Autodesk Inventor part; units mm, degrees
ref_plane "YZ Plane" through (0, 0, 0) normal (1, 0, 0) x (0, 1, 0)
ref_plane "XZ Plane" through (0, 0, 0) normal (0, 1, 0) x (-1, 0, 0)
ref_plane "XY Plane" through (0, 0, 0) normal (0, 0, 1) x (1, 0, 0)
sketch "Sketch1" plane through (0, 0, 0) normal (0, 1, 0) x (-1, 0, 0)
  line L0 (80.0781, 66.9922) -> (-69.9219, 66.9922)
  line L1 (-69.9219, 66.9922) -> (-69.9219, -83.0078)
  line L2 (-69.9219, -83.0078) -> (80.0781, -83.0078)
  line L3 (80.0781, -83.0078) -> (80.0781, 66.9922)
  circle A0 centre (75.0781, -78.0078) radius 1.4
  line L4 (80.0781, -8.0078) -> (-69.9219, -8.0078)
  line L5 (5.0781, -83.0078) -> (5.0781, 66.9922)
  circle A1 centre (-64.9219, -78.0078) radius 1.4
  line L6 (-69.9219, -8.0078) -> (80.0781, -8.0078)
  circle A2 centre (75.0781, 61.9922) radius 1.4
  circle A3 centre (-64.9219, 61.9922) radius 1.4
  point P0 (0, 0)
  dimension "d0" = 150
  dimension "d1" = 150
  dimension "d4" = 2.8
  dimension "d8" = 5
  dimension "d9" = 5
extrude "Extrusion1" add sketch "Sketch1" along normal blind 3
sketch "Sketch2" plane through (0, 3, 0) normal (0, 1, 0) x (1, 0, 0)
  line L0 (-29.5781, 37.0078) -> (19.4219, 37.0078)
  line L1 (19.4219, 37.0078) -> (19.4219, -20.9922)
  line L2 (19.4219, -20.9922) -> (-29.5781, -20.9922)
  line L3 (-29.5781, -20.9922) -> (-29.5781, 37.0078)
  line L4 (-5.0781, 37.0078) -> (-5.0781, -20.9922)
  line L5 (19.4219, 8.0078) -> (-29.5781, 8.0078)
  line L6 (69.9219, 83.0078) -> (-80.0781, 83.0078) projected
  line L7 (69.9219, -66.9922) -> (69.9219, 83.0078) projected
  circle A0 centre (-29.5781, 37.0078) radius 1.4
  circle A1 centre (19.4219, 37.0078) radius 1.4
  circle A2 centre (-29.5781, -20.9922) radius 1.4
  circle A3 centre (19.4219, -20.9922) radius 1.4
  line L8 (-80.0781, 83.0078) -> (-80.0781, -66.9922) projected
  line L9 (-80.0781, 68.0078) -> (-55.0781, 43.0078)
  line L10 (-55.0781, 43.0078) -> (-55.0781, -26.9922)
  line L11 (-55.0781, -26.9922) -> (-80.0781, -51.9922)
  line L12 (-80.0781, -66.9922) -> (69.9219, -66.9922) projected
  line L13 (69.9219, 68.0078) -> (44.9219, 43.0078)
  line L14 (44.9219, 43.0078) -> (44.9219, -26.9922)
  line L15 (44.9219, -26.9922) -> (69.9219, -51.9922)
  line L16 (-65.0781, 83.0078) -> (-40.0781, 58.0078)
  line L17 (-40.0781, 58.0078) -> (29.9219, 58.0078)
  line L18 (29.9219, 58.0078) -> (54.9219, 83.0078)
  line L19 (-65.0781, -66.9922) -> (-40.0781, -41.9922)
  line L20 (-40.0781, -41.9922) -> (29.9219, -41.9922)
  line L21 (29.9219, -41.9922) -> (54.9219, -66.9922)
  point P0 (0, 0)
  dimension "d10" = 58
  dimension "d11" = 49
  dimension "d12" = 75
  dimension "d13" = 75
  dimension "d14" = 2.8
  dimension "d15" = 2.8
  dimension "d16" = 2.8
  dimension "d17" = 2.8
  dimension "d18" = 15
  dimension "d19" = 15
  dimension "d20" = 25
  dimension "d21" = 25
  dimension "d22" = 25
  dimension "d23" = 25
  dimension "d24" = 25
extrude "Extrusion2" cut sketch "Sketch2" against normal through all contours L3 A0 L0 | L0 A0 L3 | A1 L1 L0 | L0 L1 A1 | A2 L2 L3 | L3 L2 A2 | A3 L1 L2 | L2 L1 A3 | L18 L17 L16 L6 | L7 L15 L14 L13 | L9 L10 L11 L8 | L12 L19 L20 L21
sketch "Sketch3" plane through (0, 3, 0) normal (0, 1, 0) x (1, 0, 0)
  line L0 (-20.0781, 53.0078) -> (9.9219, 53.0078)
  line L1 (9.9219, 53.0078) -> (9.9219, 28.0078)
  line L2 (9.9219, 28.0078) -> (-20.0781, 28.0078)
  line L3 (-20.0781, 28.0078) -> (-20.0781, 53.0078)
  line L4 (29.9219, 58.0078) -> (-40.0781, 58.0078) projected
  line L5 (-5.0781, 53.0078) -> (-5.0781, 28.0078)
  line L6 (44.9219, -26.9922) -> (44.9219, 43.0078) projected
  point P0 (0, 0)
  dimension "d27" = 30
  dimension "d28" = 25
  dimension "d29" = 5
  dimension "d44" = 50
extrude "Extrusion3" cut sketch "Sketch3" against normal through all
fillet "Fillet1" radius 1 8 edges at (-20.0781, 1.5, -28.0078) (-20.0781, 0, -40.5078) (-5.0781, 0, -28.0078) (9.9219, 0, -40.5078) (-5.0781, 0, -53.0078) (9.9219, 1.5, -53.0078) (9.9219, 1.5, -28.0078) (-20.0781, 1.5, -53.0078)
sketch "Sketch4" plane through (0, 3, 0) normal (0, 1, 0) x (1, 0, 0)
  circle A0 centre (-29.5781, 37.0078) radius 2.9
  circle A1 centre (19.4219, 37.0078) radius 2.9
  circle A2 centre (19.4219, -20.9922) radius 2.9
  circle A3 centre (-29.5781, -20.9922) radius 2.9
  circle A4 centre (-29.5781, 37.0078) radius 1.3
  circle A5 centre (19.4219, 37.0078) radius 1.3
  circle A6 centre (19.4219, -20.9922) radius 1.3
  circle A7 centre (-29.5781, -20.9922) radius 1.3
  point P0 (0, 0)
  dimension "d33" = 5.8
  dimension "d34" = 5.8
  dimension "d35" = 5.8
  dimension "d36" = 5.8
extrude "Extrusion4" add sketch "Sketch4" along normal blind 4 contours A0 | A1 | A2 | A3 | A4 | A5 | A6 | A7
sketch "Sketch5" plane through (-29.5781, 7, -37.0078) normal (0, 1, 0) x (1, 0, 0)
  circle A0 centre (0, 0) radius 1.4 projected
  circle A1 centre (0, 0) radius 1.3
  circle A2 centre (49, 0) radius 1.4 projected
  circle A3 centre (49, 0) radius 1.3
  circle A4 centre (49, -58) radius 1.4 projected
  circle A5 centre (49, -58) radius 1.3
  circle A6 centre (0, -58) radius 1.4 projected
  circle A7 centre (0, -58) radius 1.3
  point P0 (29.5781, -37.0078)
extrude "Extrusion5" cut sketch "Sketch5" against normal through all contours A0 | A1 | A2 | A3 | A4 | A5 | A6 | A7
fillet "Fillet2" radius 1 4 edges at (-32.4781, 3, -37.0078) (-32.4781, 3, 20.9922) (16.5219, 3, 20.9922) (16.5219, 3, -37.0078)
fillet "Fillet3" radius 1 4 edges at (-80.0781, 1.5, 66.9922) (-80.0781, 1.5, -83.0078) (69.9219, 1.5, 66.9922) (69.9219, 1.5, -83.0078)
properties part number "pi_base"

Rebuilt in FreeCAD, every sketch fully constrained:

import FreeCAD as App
import Part
import Sketcher

V = App.Vector
Q = App.Units.Quantity


def edges_at(feature, points):
    """Names of the edges that pass closest to the given points."""
    edges = feature.Shape.Edges
    near = lambda p: min(range(len(edges)), key=lambda i: edges[i].distToShape(Part.Vertex(*p))[0])
    return sorted({f"Edge{near(p) + 1}" for p in points})

doc = App.newDocument("Part")
body = doc.addObject("PartDesign::Body", "Body")

sketch1 = body.newObject("Sketcher::SketchObject", "Sketch")
sketch1.AttachmentSupport = (doc.getObject("XZ_Plane"), [""])
sketch1.MapMode = "FlatFace"
sketch1.addGeometry(Part.LineSegment(V(-80.0781, 66.9922, 0), V(69.9219, 66.9922, 0)), False)
sketch1.addGeometry(Part.LineSegment(V(69.9219, 66.9922, 0), V(69.9219, -83.0078, 0)), False)
sketch1.addGeometry(Part.LineSegment(V(69.9219, -83.0078, 0), V(-80.0781, -83.0078, 0)), False)
sketch1.addGeometry(Part.LineSegment(V(-80.0781, -83.0078, 0), V(-80.0781, 66.9922, 0)), False)
sketch1.addGeometry(Part.Circle(V(-75.0781, 61.9922, 0), V(0, 0, 1), 1.4), False)
sketch1.addGeometry(Part.Circle(V(-75.0781, -78.0078, 0), V(0, 0, 1), 1.4), False)
sketch1.addGeometry(Part.Circle(V(64.9219, 61.9922, 0), V(0, 0, 1), 1.4), False)
sketch1.addGeometry(Part.Circle(V(64.9219, -78.0078, 0), V(0, 0, 1), 1.4), False)
sketch1.addConstraint(Sketcher.Constraint("Coincident", 0, 2, 1, 1))
sketch1.addConstraint(Sketcher.Constraint("Coincident", 1, 2, 2, 1))
sketch1.addConstraint(Sketcher.Constraint("Coincident", 2, 2, 3, 1))
sketch1.addConstraint(Sketcher.Constraint("Coincident", 3, 2, 0, 1))
sketch1.addConstraint(Sketcher.Constraint("Horizontal", 0))
sketch1.addConstraint(Sketcher.Constraint("Vertical", 1))
sketch1.addConstraint(Sketcher.Constraint("Horizontal", 2))
sketch1.addConstraint(Sketcher.Constraint("Vertical", 3))
sketch1.addConstraint(Sketcher.Constraint("Equal", 4, 5))
sketch1.addConstraint(Sketcher.Constraint("Equal", 5, 6))
sketch1.addConstraint(Sketcher.Constraint("Equal", 6, 7))
sketch1.addConstraint(Sketcher.Constraint("Horizontal", 4, 3, 6, 3))
sketch1.addConstraint(Sketcher.Constraint("Horizontal", 5, 3, 7, 3))
sketch1.addConstraint(Sketcher.Constraint("Vertical", 4, 3, 5, 3))
sketch1.addConstraint(Sketcher.Constraint("Vertical", 6, 3, 7, 3))
sketch1.addConstraint(Sketcher.Constraint("Equal", 2, 1))
sketch1.addConstraint(Sketcher.Constraint("Diameter", 4, Q("2.8 mm")))
sketch1.addConstraint(Sketcher.Constraint("DistanceX", 0, 1, 0, 2, Q("150 mm")))
sketch1.addConstraint(Sketcher.Constraint("DistanceX", 6, 3, 0, 2, Q("5 mm")))
sketch1.addConstraint(Sketcher.Constraint("DistanceY", 6, 3, 0, 2, Q("5 mm")))
sketch1.addConstraint(Sketcher.Constraint("DistanceY", 1, 2, 7, 3, Q("5 mm")))
sketch1.addConstraint(Sketcher.Constraint("DistanceX", 2, 2, 5, 3, Q("5 mm")))
sketch1.addConstraint(Sketcher.Constraint("DistanceX", 4, 3, -1, 1, Q("75.078 mm")))
sketch1.addConstraint(Sketcher.Constraint("DistanceY", -1, 1, 4, 3, Q("61.9922 mm")))
pad1 = body.newObject("PartDesign::Pad", "Pad")
pad1.Profile = sketch1
pad1.Length = 3
pad1.Reversed = True

sketch2 = body.newObject("Sketcher::SketchObject", "Sketch001")
sketch2.AttachmentSupport = (doc.getObject("XZ_Plane"), [""])
sketch2.MapMode = "FlatFace"
sketch2.AttachmentOffset = App.Placement(V(0, 0, -3), App.Rotation())
sketch2.addGeometry(Part.Circle(V(-29.5781, -37.0078, 0), V(0, 0, 1), 1.4), False)
sketch2.addGeometry(Part.Circle(V(19.4219, -37.0078, 0), V(0, 0, 1), 1.4), False)
sketch2.addGeometry(Part.Circle(V(-29.5781, 20.9922, 0), V(0, 0, 1), 1.4), False)
sketch2.addGeometry(Part.Circle(V(19.4219, 20.9922, 0), V(0, 0, 1), 1.4), False)
sketch2.addGeometry(Part.LineSegment(V(29.9219, -58.0078, 0), V(54.9219, -83.0078, 0)), False)
sketch2.addGeometry(Part.LineSegment(V(54.9219, -83.0078, 0), V(-65.0781, -83.0078, 0)), False)
sketch2.addGeometry(Part.LineSegment(V(-65.0781, -83.0078, 0), V(-40.0781, -58.0078, 0)), False)
sketch2.addGeometry(Part.LineSegment(V(-40.0781, -58.0078, 0), V(29.9219, -58.0078, 0)), False)
sketch2.addGeometry(Part.LineSegment(V(69.9219, 51.9922, 0), V(69.9219, -68.0078, 0)), False)
sketch2.addGeometry(Part.LineSegment(V(69.9219, -68.0078, 0), V(44.9219, -43.0078, 0)), False)
sketch2.addGeometry(Part.LineSegment(V(44.9219, -43.0078, 0), V(44.9219, 26.9922, 0)), False)
sketch2.addGeometry(Part.LineSegment(V(44.9219, 26.9922, 0), V(69.9219, 51.9922, 0)), False)
sketch2.addGeometry(Part.LineSegment(V(-55.0781, -43.0078, 0), V(-80.0781, -68.0078, 0)), False)
sketch2.addGeometry(Part.LineSegment(V(-80.0781, -68.0078, 0), V(-80.0781, 51.9922, 0)), False)
sketch2.addGeometry(Part.LineSegment(V(-80.0781, 51.9922, 0), V(-55.0781, 26.9922, 0)), False)
sketch2.addGeometry(Part.LineSegment(V(-55.0781, 26.9922, 0), V(-55.0781, -43.0078, 0)), False)
sketch2.addGeometry(Part.LineSegment(V(-65.0781, 66.9922, 0), V(54.9219, 66.9922, 0)), False)
sketch2.addGeometry(Part.LineSegment(V(54.9219, 66.9922, 0), V(29.9219, 41.9922, 0)), False)
sketch2.addGeometry(Part.LineSegment(V(29.9219, 41.9922, 0), V(-40.0781, 41.9922, 0)), False)
sketch2.addGeometry(Part.LineSegment(V(-40.0781, 41.9922, 0), V(-65.0781, 66.9922, 0)), False)
sketch2.addConstraint(Sketcher.Constraint("Coincident", 4, 2, 5, 1))
sketch2.addConstraint(Sketcher.Constraint("Coincident", 5, 2, 6, 1))
sketch2.addConstraint(Sketcher.Constraint("Coincident", 6, 2, 7, 1))
sketch2.addConstraint(Sketcher.Constraint("Coincident", 7, 2, 4, 1))
sketch2.addConstraint(Sketcher.Constraint("Coincident", 8, 2, 9, 1))
sketch2.addConstraint(Sketcher.Constraint("Coincident", 9, 2, 10, 1))
sketch2.addConstraint(Sketcher.Constraint("Coincident", 10, 2, 11, 1))
sketch2.addConstraint(Sketcher.Constraint("Coincident", 11, 2, 8, 1))
sketch2.addConstraint(Sketcher.Constraint("Coincident", 12, 2, 13, 1))
sketch2.addConstraint(Sketcher.Constraint("Coincident", 13, 2, 14, 1))
sketch2.addConstraint(Sketcher.Constraint("Coincident", 14, 2, 15, 1))
sketch2.addConstraint(Sketcher.Constraint("Coincident", 15, 2, 12, 1))
sketch2.addConstraint(Sketcher.Constraint("Coincident", 16, 2, 17, 1))
sketch2.addConstraint(Sketcher.Constraint("Coincident", 17, 2, 18, 1))
sketch2.addConstraint(Sketcher.Constraint("Coincident", 18, 2, 19, 1))
sketch2.addConstraint(Sketcher.Constraint("Coincident", 19, 2, 16, 1))
sketch2.addConstraint(Sketcher.Constraint("Horizontal", 5))
sketch2.addConstraint(Sketcher.Constraint("Horizontal", 7))
sketch2.addConstraint(Sketcher.Constraint("Vertical", 8))
sketch2.addConstraint(Sketcher.Constraint("Vertical", 10))
sketch2.addConstraint(Sketcher.Constraint("Vertical", 13))
sketch2.addConstraint(Sketcher.Constraint("Vertical", 15))
sketch2.addConstraint(Sketcher.Constraint("Horizontal", 16))
sketch2.addConstraint(Sketcher.Constraint("Horizontal", 18))
sketch2.addConstraint(Sketcher.Constraint("Equal", 0, 1))
sketch2.addConstraint(Sketcher.Constraint("Equal", 1, 2))
sketch2.addConstraint(Sketcher.Constraint("Equal", 2, 3))
sketch2.addConstraint(Sketcher.Constraint("Perpendicular", 4, 6))
sketch2.addConstraint(Sketcher.Constraint("Perpendicular", 6, 9))
sketch2.addConstraint(Sketcher.Constraint("Perpendicular", 9, 11))
sketch2.addConstraint(Sketcher.Constraint("Parallel", 11, 12))
sketch2.addConstraint(Sketcher.Constraint("Perpendicular", 12, 14))
sketch2.addConstraint(Sketcher.Constraint("Perpendicular", 14, 17))
sketch2.addConstraint(Sketcher.Constraint("Perpendicular", 17, 19))
sketch2.addConstraint(Sketcher.Constraint("Horizontal", 0, 3, 1, 3))
sketch2.addConstraint(Sketcher.Constraint("Horizontal", 2, 3, 3, 3))
sketch2.addConstraint(Sketcher.Constraint("Horizontal", 8, 2, 12, 2))
sketch2.addConstraint(Sketcher.Constraint("Horizontal", 11, 2, 13, 2))
sketch2.addConstraint(Sketcher.Constraint("Horizontal", 10, 2, 14, 2))
sketch2.addConstraint(Sketcher.Constraint("Horizontal", 9, 2, 15, 2))
sketch2.addConstraint(Sketcher.Constraint("Vertical", 0, 3, 2, 3))
sketch2.addConstraint(Sketcher.Constraint("Vertical", 1, 3, 3, 3))
sketch2.addConstraint(Sketcher.Constraint("Vertical", 4, 2, 16, 2))
sketch2.addConstraint(Sketcher.Constraint("Vertical", 7, 2, 17, 2))
sketch2.addConstraint(Sketcher.Constraint("Vertical", 6, 2, 18, 2))
sketch2.addConstraint(Sketcher.Constraint("Equal", 16, 8))
sketch2.addConstraint(Sketcher.Constraint("Equal", 18, 10))
sketch2.addConstraint(Sketcher.Constraint("Diameter", 0, Q("2.8 mm")))
sketch2.addConstraint(Sketcher.Constraint("DistanceX", 0, 3, 1, 3, Q("49 mm")))
sketch2.addConstraint(Sketcher.Constraint("DistanceY", 0, 3, 2, 3, Q("58 mm")))
sketch2.addConstraint(Sketcher.Constraint("DistanceX", 5, 2, 6, 2, Q("25 mm")))
sketch2.addConstraint(Sketcher.Constraint("DistanceX", 4, 2, 8, 2, Q("15 mm")))
sketch2.addConstraint(Sketcher.Constraint("DistanceY", 4, 2, 8, 2, Q("15 mm")))
sketch2.addConstraint(Sketcher.Constraint("DistanceX", 12, 2, 5, 2, Q("15 mm")))
sketch2.addConstraint(Sketcher.Constraint("DistanceY", 11, 2, 16, 2, Q("15 mm")))
sketch2.addConstraint(Sketcher.Constraint("DistanceX", 5, 2, 5, 1, Q("120 mm")))
sketch2.addConstraint(Sketcher.Constraint("DistanceY", 4, 2, 1, 3, Q("46 mm")))
sketch2.addConstraint(Sketcher.Constraint("DistanceX", 1, 3, 4, 2, Q("35.5 mm")))
sketch2.addConstraint(Sketcher.Constraint("DistanceX", 0, 3, -1, 1, Q("29.578 mm")))
sketch2.addConstraint(Sketcher.Constraint("DistanceY", 0, 3, -1, 1, Q("37.0078 mm")))
pocket1 = body.newObject("PartDesign::Pocket", "Pocket")
pocket1.Profile = sketch2
pocket1.Type = "ThroughAll"
pocket1.Reversed = True

sketch3 = body.newObject("Sketcher::SketchObject", "Sketch002")
sketch3.AttachmentSupport = (doc.getObject("XZ_Plane"), [""])
sketch3.MapMode = "FlatFace"
sketch3.AttachmentOffset = App.Placement(V(0, 0, -3), App.Rotation())
sketch3.addGeometry(Part.LineSegment(V(-20.0781, -53.0078, 0), V(-20.0781, -28.0078, 0)), False)
sketch3.addGeometry(Part.LineSegment(V(-20.0781, -28.0078, 0), V(9.9219, -28.0078, 0)), False)
sketch3.addGeometry(Part.LineSegment(V(9.9219, -28.0078, 0), V(9.9219, -53.0078, 0)), False)
sketch3.addGeometry(Part.LineSegment(V(9.9219, -53.0078, 0), V(-20.0781, -53.0078, 0)), False)
sketch3.addConstraint(Sketcher.Constraint("Coincident", 0, 2, 1, 1))
sketch3.addConstraint(Sketcher.Constraint("Coincident", 1, 2, 2, 1))
sketch3.addConstraint(Sketcher.Constraint("Coincident", 2, 2, 3, 1))
sketch3.addConstraint(Sketcher.Constraint("Coincident", 3, 2, 0, 1))
sketch3.addConstraint(Sketcher.Constraint("Vertical", 0))
sketch3.addConstraint(Sketcher.Constraint("Horizontal", 1))
sketch3.addConstraint(Sketcher.Constraint("Vertical", 2))
sketch3.addConstraint(Sketcher.Constraint("Horizontal", 3))
sketch3.addConstraint(Sketcher.Constraint("DistanceX", 1, 1, 1, 2, Q("30 mm")))
sketch3.addConstraint(Sketcher.Constraint("DistanceY", 0, 1, 0, 2, Q("25 mm")))
sketch3.addConstraint(Sketcher.Constraint("DistanceX", 0, 2, -1, 1, Q("20.078 mm")))
sketch3.addConstraint(Sketcher.Constraint("DistanceY", 0, 2, -1, 1, Q("28.0078 mm")))
pocket2 = body.newObject("PartDesign::Pocket", "Pocket001")
pocket2.Profile = sketch3
pocket2.Type = "ThroughAll"
pocket2.Reversed = True
doc.recompute()

fillet = body.newObject("PartDesign::Fillet", "Fillet")
fillet.Base = (pocket2, edges_at(pocket2, [
    (-20.078, 1.5, -28.008),
    (-20.078, 0, -40.508),
    (-5.078, 0, -28.008),
    (9.922, 0, -40.508),
    (-5.078, 0, -53.008),
    (9.922, 1.5, -53.008),
    (9.922, 1.5, -28.008),
    (-20.078, 1.5, -53.008),
]))
fillet.Radius = 1

sketch4 = body.newObject("Sketcher::SketchObject", "Sketch003")
sketch4.AttachmentSupport = (doc.getObject("XZ_Plane"), [""])
sketch4.MapMode = "FlatFace"
sketch4.AttachmentOffset = App.Placement(V(0, 0, -3), App.Rotation())
sketch4.addGeometry(Part.Circle(V(-29.5781, -37.0078, 0), V(0, 0, 1), 2.9), False)
sketch4.addGeometry(Part.Circle(V(19.4219, -37.0078, 0), V(0, 0, 1), 2.9), False)
sketch4.addGeometry(Part.Circle(V(19.4219, 20.9922, 0), V(0, 0, 1), 2.9), False)
sketch4.addGeometry(Part.Circle(V(-29.5781, 20.9922, 0), V(0, 0, 1), 2.9), False)
sketch4.addConstraint(Sketcher.Constraint("Equal", 0, 1))
sketch4.addConstraint(Sketcher.Constraint("Equal", 1, 2))
sketch4.addConstraint(Sketcher.Constraint("Equal", 2, 3))
sketch4.addConstraint(Sketcher.Constraint("Horizontal", 0, 3, 1, 3))
sketch4.addConstraint(Sketcher.Constraint("Horizontal", 2, 3, 3, 3))
sketch4.addConstraint(Sketcher.Constraint("Vertical", 1, 3, 2, 3))
sketch4.addConstraint(Sketcher.Constraint("Vertical", 0, 3, 3, 3))
sketch4.addConstraint(Sketcher.Constraint("Diameter", 0, Q("5.8 mm")))
sketch4.addConstraint(Sketcher.Constraint("DistanceX", 0, 3, 1, 3, Q("49 mm")))
sketch4.addConstraint(Sketcher.Constraint("DistanceY", 1, 3, 2, 3, Q("58 mm")))
sketch4.addConstraint(Sketcher.Constraint("DistanceX", 0, 3, -1, 1, Q("29.578 mm")))
sketch4.addConstraint(Sketcher.Constraint("DistanceY", 0, 3, -1, 1, Q("37.0078 mm")))
pad2 = body.newObject("PartDesign::Pad", "Pad001")
pad2.Profile = sketch4
pad2.Length = 4
pad2.Reversed = True

sketch5 = body.newObject("Sketcher::SketchObject", "Sketch004")
sketch5.AttachmentSupport = (doc.getObject("XZ_Plane"), [""])
sketch5.MapMode = "FlatFace"
sketch5.AttachmentOffset = App.Placement(V(0, 0, -7), App.Rotation())
sketch5.addGeometry(Part.Circle(V(-29.5781, -37.0078, 0), V(0, 0, 1), 1.4), False)
sketch5.addGeometry(Part.Circle(V(19.4219, -37.0078, 0), V(0, 0, 1), 1.4), False)
sketch5.addGeometry(Part.Circle(V(19.4219, 20.9922, 0), V(0, 0, 1), 1.4), False)
sketch5.addGeometry(Part.Circle(V(-29.5781, 20.9922, 0), V(0, 0, 1), 1.4), False)
sketch5.addConstraint(Sketcher.Constraint("Equal", 0, 1))
sketch5.addConstraint(Sketcher.Constraint("Equal", 1, 2))
sketch5.addConstraint(Sketcher.Constraint("Equal", 2, 3))
sketch5.addConstraint(Sketcher.Constraint("Horizontal", 0, 3, 1, 3))
sketch5.addConstraint(Sketcher.Constraint("Horizontal", 2, 3, 3, 3))
sketch5.addConstraint(Sketcher.Constraint("Vertical", 1, 3, 2, 3))
sketch5.addConstraint(Sketcher.Constraint("Vertical", 0, 3, 3, 3))
sketch5.addConstraint(Sketcher.Constraint("Diameter", 0, Q("2.8 mm")))
sketch5.addConstraint(Sketcher.Constraint("DistanceX", 0, 3, 1, 3, Q("49 mm")))
sketch5.addConstraint(Sketcher.Constraint("DistanceY", 1, 3, 2, 3, Q("58 mm")))
sketch5.addConstraint(Sketcher.Constraint("DistanceX", 0, 3, -1, 1, Q("29.578 mm")))
sketch5.addConstraint(Sketcher.Constraint("DistanceY", 0, 3, -1, 1, Q("37.0078 mm")))
pocket3 = body.newObject("PartDesign::Pocket", "Pocket002")
pocket3.Profile = sketch5
pocket3.Type = "ThroughAll"
pocket3.Reversed = True
doc.recompute()

fillet2 = body.newObject("PartDesign::Fillet", "Fillet001")
fillet2.Base = (pocket3, edges_at(pocket3, [
    (-32.478, 3, -37.008),
    (-32.478, 3, 20.992),
    (16.522, 3, 20.992),
    (16.522, 3, -37.008),
]))
fillet2.Radius = 1
doc.recompute()

fillet3 = body.newObject("PartDesign::Fillet", "Fillet002")
fillet3.Base = (fillet2, edges_at(fillet2, [
    (-80.078, 1.5, 66.992),
    (-80.078, 1.5, -83.008),
    (69.922, 1.5, 66.992),
    (69.922, 1.5, -83.008),
]))
fillet3.Radius = 1

doc.recompute()
